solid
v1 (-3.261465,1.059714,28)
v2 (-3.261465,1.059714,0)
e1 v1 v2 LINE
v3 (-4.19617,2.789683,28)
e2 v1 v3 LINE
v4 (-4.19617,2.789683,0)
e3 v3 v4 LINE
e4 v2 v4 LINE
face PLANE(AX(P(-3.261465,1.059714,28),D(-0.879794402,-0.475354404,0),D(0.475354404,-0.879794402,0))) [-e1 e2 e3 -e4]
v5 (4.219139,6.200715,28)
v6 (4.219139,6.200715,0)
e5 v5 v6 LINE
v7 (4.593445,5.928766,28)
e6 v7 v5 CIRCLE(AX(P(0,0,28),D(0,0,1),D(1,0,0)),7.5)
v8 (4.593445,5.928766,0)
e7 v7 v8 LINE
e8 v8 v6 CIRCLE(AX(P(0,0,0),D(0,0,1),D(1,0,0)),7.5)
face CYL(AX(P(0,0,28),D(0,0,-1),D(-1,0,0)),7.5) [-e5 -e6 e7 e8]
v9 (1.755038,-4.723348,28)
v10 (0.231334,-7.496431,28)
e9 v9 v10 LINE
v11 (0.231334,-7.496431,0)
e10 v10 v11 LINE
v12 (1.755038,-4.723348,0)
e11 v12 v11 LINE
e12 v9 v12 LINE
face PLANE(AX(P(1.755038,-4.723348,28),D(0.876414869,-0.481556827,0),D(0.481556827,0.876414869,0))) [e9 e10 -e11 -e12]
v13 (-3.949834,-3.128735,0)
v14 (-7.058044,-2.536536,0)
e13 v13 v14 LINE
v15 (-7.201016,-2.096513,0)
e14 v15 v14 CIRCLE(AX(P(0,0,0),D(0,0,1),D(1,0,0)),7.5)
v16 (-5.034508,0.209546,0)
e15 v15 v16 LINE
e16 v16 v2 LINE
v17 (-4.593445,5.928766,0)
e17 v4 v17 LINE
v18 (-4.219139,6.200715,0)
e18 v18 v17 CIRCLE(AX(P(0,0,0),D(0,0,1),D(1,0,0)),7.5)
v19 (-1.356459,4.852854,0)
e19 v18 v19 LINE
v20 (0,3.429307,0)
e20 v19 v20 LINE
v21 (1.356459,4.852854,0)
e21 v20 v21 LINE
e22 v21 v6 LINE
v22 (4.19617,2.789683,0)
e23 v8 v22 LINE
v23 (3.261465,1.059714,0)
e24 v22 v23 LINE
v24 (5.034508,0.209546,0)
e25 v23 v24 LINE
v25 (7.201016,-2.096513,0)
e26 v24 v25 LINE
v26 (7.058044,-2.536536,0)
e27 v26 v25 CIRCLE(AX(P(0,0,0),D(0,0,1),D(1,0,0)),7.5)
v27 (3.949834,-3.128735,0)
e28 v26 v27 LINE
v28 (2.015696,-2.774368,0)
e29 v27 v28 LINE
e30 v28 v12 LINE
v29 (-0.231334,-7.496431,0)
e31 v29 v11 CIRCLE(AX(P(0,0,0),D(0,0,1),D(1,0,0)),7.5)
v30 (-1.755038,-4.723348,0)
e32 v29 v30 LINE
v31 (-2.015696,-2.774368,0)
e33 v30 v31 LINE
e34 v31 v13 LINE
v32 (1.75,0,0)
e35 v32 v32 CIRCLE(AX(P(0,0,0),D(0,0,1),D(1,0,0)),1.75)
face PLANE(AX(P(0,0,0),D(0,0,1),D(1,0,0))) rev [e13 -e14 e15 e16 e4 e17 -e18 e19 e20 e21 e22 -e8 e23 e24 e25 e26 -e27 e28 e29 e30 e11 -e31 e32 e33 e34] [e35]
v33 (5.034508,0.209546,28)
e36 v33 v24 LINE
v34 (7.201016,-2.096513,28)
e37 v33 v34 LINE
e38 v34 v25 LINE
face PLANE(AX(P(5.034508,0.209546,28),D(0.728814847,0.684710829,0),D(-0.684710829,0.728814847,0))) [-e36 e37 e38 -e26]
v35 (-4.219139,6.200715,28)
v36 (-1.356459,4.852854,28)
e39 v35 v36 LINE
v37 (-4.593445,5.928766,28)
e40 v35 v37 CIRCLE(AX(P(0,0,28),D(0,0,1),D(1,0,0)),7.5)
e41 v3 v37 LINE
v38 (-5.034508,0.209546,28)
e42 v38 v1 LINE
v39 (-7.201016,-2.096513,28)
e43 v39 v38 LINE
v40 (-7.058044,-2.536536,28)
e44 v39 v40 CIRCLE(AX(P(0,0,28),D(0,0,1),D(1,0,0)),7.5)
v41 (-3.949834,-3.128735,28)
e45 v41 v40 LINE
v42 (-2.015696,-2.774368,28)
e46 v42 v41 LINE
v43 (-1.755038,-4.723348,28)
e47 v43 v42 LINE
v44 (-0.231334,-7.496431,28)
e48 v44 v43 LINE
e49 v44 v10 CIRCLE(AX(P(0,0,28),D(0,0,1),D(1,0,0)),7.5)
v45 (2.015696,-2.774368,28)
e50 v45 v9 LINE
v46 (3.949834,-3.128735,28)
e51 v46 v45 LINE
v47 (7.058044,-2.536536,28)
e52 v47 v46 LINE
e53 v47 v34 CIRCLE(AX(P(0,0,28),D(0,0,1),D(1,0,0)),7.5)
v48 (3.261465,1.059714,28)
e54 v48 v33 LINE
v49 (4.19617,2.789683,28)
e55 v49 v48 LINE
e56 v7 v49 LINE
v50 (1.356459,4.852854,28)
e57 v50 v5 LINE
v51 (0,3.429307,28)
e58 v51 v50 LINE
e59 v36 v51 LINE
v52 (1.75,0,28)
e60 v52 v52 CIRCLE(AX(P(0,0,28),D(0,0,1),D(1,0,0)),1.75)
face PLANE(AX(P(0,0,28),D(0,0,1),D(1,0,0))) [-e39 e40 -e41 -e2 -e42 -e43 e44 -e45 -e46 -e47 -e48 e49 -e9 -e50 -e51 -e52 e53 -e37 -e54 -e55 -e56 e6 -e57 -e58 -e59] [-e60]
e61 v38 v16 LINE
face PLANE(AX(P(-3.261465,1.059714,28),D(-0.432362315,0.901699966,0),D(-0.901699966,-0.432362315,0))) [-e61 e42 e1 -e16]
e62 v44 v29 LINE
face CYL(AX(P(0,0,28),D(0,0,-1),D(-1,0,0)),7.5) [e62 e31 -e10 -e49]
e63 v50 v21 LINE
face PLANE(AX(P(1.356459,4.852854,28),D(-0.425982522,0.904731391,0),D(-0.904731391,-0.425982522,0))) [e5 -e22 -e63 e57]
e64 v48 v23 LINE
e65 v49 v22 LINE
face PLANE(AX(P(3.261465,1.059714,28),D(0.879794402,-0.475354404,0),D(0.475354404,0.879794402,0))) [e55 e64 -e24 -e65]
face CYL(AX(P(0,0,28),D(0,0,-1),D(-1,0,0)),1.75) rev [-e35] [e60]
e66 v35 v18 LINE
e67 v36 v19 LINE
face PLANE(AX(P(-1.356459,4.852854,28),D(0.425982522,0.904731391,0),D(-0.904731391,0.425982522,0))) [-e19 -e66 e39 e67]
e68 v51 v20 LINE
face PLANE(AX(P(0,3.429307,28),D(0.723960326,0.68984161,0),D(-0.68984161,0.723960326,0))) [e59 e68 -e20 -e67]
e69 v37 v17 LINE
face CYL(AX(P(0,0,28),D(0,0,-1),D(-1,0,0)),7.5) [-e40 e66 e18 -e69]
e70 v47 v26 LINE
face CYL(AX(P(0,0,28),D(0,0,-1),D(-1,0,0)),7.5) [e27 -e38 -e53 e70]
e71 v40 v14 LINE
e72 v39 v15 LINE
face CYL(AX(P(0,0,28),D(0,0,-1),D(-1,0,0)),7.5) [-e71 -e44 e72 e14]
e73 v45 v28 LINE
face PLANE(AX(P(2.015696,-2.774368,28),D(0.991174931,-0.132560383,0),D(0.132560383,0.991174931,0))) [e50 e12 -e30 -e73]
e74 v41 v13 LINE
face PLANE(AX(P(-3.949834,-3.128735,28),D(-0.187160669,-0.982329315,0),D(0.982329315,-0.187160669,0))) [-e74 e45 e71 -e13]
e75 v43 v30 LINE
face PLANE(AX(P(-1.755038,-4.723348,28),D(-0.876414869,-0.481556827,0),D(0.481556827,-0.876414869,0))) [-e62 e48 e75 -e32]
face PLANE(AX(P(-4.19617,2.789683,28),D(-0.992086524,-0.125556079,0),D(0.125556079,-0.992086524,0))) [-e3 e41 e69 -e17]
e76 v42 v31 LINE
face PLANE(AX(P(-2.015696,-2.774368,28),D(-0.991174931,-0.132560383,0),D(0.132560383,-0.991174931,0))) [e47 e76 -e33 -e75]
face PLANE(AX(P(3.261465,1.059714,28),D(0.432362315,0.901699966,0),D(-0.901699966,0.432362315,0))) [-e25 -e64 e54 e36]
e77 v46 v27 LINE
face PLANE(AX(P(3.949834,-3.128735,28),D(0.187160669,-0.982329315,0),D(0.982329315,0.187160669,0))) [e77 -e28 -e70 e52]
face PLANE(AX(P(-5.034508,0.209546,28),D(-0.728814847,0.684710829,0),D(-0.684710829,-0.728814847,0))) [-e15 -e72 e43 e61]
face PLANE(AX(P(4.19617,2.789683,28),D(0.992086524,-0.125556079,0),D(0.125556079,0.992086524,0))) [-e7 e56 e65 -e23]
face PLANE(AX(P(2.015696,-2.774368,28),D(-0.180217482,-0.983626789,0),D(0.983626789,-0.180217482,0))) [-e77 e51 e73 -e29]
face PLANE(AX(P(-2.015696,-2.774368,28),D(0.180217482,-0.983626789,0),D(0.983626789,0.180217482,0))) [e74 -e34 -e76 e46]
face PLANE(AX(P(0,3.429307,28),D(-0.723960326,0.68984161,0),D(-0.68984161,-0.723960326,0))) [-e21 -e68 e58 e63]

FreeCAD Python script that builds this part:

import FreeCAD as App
import Part
import Sketcher
from FreeCAD import Vector
Q = App.Units.Quantity

doc = App.newDocument("Part")
body = doc.addObject("PartDesign::Body", "Body")

# Sketch on XY plane
sketch1 = body.newObject("Sketcher::SketchObject", "Sketch")
sketch1.AttachmentSupport = (doc.getObject("XY_Plane"), [""])
sketch1.MapMode = "FlatFace"
sketch1.addGeometry(Part.Circle(Vector(0, 0, 0), Vector(0, 0, 1), 7.5), False)
sketch1.addGeometry(Part.Circle(Vector(0, 0, 0), Vector(0, 0, 1), 1.8), False)
sketch1.addConstraint(Sketcher.Constraint("Coincident", 0, 3, -1, 1))
sketch1.addConstraint(Sketcher.Constraint("Coincident", 1, 3, -1, 1))
sketch1.addConstraint(Sketcher.Constraint("Diameter", 0, Q("15 mm")))
sketch1.addConstraint(Sketcher.Constraint("Diameter", 1, Q("3.5 mm")))
pad1 = body.newObject("PartDesign::Pad", "Pad")
pad1.Profile = sketch1
pad1.Length = 28

# Sketch on XY plane
sketch2 = body.newObject("Sketcher::SketchObject", "Sketch001")
sketch2.AttachmentSupport = (doc.getObject("XY_Plane"), [""])
sketch2.MapMode = "FlatFace"
sketch2.addGeometry(Part.LineSegment(Vector(-1.4, 4.9, 0), Vector(0, 3.4, 0)), False)
sketch2.addGeometry(Part.LineSegment(Vector(0, 3.4, 0), Vector(1.4, 4.9, 0)), False)
sketch2.addGeometry(Part.LineSegment(Vector(1.4, 4.9, 0), Vector(4.2, 6.2, 0)), False)
sketch2.addGeometry(Part.LineSegment(Vector(4.2, 6.2, 0), Vector(0, 11.3, 0)), False)
sketch2.addGeometry(Part.LineSegment(Vector(0, 11.3, 0), Vector(-4.2, 6.2, 0)), False)
sketch2.addGeometry(Part.LineSegment(Vector(-4.2, 6.2, 0), Vector(-1.4, 4.9, 0)), False)
sketch2.addConstraint(Sketcher.Constraint("Coincident", 0, 2, 1, 1))
sketch2.addConstraint(Sketcher.Constraint("Coincident", 1, 2, 2, 1))
sketch2.addConstraint(Sketcher.Constraint("Coincident", 2, 2, 3, 1))
sketch2.addConstraint(Sketcher.Constraint("Coincident", 3, 2, 4, 1))
sketch2.addConstraint(Sketcher.Constraint("Coincident", 4, 2, 5, 1))
sketch2.addConstraint(Sketcher.Constraint("Coincident", 5, 2, 0, 1))
sketch2.addConstraint(Sketcher.Constraint("Symmetric", 2, 2, 4, 2, -2))
sketch2.addConstraint(Sketcher.Constraint("Symmetric", 1, 2, 5, 2, -2))
sketch2.addConstraint(Sketcher.Constraint("PointOnObject", 0, 2, -2))
sketch2.addConstraint(Sketcher.Constraint("PointOnObject", 3, 2, -2))
sketch2.addConstraint(Sketcher.Constraint("Distance", 2, Q("3.164122 mm")))
sketch2.addConstraint(Sketcher.Constraint("DistanceX", -1, 1, 1, 2, Q("1.356459 mm")))
sketch2.addConstraint(Sketcher.Constraint("DistanceX", -1, 1, 2, 2, Q("4.219139 mm")))
sketch2.addConstraint(Sketcher.Constraint("DistanceY", 0, 2, 2, 2, Q("2.771408 mm")))
sketch2.addConstraint(Sketcher.Constraint("DistanceY", 0, 2, 3, 2, Q("7.82234 mm")))
sketch2.addConstraint(Sketcher.Constraint("DistanceY", -1, 1, 0, 2, Q("3.429307 mm")))
pocket1 = body.newObject("PartDesign::Pocket", "Pocket")
pocket1.Profile = sketch2
pocket1.Type = "ThroughAll"
pocket1.Reversed = True
doc.recompute()

polarpattern = body.newObject("PartDesign::PolarPattern", "PolarPattern")
polarpattern.Originals = [pocket1]
polarpattern.Axis = (doc.getObject("Z_Axis"), [""])
polarpattern.Angle = 360
polarpattern.Occurrences = 5
body.Tip = polarpattern

doc.recompute()
